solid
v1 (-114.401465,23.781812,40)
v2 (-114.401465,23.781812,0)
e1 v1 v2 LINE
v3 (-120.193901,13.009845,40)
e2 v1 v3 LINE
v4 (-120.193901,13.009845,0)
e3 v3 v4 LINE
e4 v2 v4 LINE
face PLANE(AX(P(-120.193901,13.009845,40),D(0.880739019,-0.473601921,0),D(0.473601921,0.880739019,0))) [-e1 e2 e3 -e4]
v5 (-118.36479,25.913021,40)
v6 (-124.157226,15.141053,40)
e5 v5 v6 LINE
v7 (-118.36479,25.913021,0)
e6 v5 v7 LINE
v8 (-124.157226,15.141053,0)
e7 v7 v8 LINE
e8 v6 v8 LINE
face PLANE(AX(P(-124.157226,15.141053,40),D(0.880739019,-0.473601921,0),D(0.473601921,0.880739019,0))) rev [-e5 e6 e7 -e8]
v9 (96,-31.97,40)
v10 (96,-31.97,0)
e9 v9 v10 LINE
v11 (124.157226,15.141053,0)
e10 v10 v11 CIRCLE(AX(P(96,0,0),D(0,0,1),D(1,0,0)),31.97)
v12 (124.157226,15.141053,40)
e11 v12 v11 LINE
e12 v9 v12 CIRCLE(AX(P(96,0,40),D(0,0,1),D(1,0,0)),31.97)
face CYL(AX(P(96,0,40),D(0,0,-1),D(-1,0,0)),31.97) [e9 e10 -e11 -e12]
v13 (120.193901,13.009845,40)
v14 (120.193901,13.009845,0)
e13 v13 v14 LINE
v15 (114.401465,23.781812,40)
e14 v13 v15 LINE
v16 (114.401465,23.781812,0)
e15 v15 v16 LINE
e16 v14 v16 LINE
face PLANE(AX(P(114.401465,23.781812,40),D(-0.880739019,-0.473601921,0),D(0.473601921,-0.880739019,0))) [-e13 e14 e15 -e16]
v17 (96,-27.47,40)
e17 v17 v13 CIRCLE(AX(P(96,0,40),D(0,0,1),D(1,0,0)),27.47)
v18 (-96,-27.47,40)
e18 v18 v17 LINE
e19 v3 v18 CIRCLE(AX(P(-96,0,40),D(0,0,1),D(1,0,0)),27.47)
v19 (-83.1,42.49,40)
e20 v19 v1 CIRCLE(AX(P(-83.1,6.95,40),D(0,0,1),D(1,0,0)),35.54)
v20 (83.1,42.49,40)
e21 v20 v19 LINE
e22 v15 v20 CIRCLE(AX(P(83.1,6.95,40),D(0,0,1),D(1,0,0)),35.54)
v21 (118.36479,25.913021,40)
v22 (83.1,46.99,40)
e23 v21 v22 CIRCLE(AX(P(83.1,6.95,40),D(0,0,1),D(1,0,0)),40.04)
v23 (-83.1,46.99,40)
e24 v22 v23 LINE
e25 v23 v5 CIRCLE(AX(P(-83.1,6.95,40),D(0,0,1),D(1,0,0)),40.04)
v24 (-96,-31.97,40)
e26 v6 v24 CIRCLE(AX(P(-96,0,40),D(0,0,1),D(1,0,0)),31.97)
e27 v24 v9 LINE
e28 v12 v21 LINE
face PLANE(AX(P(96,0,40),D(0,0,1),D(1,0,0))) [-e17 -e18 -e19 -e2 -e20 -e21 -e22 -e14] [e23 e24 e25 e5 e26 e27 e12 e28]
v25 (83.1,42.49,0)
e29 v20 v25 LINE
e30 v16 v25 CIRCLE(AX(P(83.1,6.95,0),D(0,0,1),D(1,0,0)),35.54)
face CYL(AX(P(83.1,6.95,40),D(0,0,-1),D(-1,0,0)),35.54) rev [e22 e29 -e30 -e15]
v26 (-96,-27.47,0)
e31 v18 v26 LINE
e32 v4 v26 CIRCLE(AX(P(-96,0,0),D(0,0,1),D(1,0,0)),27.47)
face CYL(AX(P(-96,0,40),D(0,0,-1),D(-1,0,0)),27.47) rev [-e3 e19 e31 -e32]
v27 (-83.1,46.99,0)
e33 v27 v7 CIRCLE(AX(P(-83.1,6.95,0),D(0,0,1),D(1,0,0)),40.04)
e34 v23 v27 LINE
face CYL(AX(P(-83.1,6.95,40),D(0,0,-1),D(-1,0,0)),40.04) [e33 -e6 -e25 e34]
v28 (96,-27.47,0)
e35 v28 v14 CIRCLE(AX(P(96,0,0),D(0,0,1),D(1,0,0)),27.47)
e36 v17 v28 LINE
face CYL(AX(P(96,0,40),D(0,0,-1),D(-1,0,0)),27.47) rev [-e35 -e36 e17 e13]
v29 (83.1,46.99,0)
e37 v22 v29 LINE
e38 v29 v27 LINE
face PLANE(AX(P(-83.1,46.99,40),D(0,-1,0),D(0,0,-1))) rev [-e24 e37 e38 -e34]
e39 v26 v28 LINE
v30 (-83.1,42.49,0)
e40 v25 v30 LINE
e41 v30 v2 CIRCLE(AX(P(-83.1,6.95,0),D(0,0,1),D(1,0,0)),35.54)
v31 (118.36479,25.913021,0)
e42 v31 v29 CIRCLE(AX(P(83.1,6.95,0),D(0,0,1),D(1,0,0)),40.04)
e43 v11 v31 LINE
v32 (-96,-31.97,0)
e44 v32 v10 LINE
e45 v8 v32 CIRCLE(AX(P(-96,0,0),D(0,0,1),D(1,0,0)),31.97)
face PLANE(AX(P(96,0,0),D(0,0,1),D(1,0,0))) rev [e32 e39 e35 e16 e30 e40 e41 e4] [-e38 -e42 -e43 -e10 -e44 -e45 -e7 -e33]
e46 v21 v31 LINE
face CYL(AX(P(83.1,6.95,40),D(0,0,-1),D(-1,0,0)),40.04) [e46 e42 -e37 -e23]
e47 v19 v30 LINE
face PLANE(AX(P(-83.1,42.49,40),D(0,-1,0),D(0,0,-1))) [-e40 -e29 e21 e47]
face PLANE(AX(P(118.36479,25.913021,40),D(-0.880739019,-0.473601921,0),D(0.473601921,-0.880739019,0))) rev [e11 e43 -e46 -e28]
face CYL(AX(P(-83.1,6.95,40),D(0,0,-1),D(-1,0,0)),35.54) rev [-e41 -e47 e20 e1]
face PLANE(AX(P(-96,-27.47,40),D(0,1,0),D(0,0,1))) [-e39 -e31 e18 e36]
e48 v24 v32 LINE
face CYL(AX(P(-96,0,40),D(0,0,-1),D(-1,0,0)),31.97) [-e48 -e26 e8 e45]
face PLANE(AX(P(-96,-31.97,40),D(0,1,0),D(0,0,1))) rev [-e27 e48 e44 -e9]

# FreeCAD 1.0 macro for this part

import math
import FreeCAD as App
import Part
import Sketcher

V = App.Vector

doc = App.newDocument("Part")
body = doc.addObject("PartDesign::Body", "Body")

# Sketch on XY plane
sketch1 = body.newObject("Sketcher::SketchObject", "Sketch")
sketch1.AttachmentSupport = (doc.getObject("XY_Plane"), [""])
sketch1.MapMode = "FlatFace"
sketch1.addGeometry([
    Part.LineSegment(V(83.1, 46.99, 0), V(-83.1, 46.99, 0)),  # 0
    Part.ArcOfCircle(Part.Circle(V(-83.1, 6.95, 0), V(0, 0, 1), 40.04), math.radians(90), math.radians(151.73164)),  # 1
    Part.LineSegment(V(-118.36479, 25.913021, 0), V(-124.157226, 15.141053, 0)),  # 2
    Part.ArcOfCircle(Part.Circle(V(-96, 0, 0), V(0, 0, 1), 31.97), math.radians(151.73164), math.radians(270)),  # 3
    Part.LineSegment(V(-96, -31.97, 0), V(96, -31.97, 0)),  # 4
    Part.ArcOfCircle(Part.Circle(V(96, 0, 0), V(0, 0, 1), 31.97), math.radians(-90), math.radians(28.26836)),  # 5
    Part.LineSegment(V(124.157226, 15.141053, 0), V(118.36479, 25.913021, 0)),  # 6
    Part.ArcOfCircle(Part.Circle(V(83.1, 6.95, 0), V(0, 0, 1), 40.04), math.radians(28.26836), math.radians(90)),  # 7
    Part.LineSegment(V(-83.1, 42.49, 0), V(83.1, 42.49, 0)),  # 8
    Part.ArcOfCircle(Part.Circle(V(83.1, 6.95, 0), V(0, 0, 1), 35.54), math.radians(28.26836), math.radians(90)),  # 9
    Part.LineSegment(V(114.401465, 23.781812, 0), V(120.193901, 13.009845, 0)),  # 10
    Part.ArcOfCircle(Part.Circle(V(96, 0, 0), V(0, 0, 1), 27.47), math.radians(-90), math.radians(28.26836)),  # 11
    Part.LineSegment(V(96, -27.47, 0), V(-96, -27.47, 0)),  # 12
    Part.ArcOfCircle(Part.Circle(V(-96, 0, 0), V(0, 0, 1), 27.47), math.radians(151.73164), math.radians(270)),  # 13
    Part.LineSegment(V(-120.193901, 13.009845, 0), V(-114.401465, 23.781812, 0)),  # 14
    Part.ArcOfCircle(Part.Circle(V(-83.1, 6.95, 0), V(0, 0, 1), 35.54), math.radians(90), math.radians(151.73164)),  # 15
], False)
sketch1.addConstraint([
    Sketcher.Constraint("Tangent", 0, 2, 1, 1),
    Sketcher.Constraint("Tangent", 1, 2, 2, 1),
    Sketcher.Constraint("Tangent", 2, 2, 3, 1),
    Sketcher.Constraint("Tangent", 3, 2, 4, 1),
    Sketcher.Constraint("Tangent", 4, 2, 5, 1),
    Sketcher.Constraint("Tangent", 5, 2, 6, 1),
    Sketcher.Constraint("Tangent", 6, 2, 7, 1),
    Sketcher.Constraint("Tangent", 7, 2, 0, 1),
    Sketcher.Constraint("Tangent", 8, 2, 9, 2),
    Sketcher.Constraint("Tangent", 9, 1, 10, 1),
    Sketcher.Constraint("Tangent", 10, 2, 11, 2),
    Sketcher.Constraint("Tangent", 11, 1, 12, 1),
    Sketcher.Constraint("Tangent", 12, 2, 13, 2),
    Sketcher.Constraint("Tangent", 13, 1, 14, 1),
    Sketcher.Constraint("Tangent", 14, 2, 15, 2),
    Sketcher.Constraint("Tangent", 15, 1, 8, 1),
    Sketcher.Constraint("Horizontal", 0),
    Sketcher.Constraint("Horizontal", 4),
    Sketcher.Constraint("Horizontal", 8),
    Sketcher.Constraint("Horizontal", 12),
    Sketcher.Constraint("Coincident", 9, 3, 7, 3),
    Sketcher.Constraint("Coincident", 11, 3, 5, 3),
    Sketcher.Constraint("Coincident", 13, 3, 3, 3),
    Sketcher.Constraint("Coincident", 15, 3, 1, 3),
    Sketcher.Constraint("Equal", 3, 5),
    Sketcher.Constraint("Equal", 1, 7),
    Sketcher.Constraint("Symmetric", 3, 3, 5, 3, -1, 1),
    Sketcher.Constraint("Parallel", 6, 10),
    Sketcher.Constraint("Horizontal", 2, 2, 5, 2),
    Sketcher.Constraint("DistanceX", 4, 1, 4, 2, 192.0),
    Sketcher.Constraint("Radius", 1, 40.04),
    Sketcher.Constraint("Radius", 3, 31.97),
    Sketcher.Constraint("Radius", 9, 35.54),
    Sketcher.Constraint("DistanceX", 0, 2, 0, 1, 166.2),
    Sketcher.Constraint("DistanceY", -1, 1, 1, 3, 6.95),
])
pad1 = body.newObject("PartDesign::Pad", "Pad")
pad1.Profile = sketch1
pad1.Length = 40

doc.recompute()
